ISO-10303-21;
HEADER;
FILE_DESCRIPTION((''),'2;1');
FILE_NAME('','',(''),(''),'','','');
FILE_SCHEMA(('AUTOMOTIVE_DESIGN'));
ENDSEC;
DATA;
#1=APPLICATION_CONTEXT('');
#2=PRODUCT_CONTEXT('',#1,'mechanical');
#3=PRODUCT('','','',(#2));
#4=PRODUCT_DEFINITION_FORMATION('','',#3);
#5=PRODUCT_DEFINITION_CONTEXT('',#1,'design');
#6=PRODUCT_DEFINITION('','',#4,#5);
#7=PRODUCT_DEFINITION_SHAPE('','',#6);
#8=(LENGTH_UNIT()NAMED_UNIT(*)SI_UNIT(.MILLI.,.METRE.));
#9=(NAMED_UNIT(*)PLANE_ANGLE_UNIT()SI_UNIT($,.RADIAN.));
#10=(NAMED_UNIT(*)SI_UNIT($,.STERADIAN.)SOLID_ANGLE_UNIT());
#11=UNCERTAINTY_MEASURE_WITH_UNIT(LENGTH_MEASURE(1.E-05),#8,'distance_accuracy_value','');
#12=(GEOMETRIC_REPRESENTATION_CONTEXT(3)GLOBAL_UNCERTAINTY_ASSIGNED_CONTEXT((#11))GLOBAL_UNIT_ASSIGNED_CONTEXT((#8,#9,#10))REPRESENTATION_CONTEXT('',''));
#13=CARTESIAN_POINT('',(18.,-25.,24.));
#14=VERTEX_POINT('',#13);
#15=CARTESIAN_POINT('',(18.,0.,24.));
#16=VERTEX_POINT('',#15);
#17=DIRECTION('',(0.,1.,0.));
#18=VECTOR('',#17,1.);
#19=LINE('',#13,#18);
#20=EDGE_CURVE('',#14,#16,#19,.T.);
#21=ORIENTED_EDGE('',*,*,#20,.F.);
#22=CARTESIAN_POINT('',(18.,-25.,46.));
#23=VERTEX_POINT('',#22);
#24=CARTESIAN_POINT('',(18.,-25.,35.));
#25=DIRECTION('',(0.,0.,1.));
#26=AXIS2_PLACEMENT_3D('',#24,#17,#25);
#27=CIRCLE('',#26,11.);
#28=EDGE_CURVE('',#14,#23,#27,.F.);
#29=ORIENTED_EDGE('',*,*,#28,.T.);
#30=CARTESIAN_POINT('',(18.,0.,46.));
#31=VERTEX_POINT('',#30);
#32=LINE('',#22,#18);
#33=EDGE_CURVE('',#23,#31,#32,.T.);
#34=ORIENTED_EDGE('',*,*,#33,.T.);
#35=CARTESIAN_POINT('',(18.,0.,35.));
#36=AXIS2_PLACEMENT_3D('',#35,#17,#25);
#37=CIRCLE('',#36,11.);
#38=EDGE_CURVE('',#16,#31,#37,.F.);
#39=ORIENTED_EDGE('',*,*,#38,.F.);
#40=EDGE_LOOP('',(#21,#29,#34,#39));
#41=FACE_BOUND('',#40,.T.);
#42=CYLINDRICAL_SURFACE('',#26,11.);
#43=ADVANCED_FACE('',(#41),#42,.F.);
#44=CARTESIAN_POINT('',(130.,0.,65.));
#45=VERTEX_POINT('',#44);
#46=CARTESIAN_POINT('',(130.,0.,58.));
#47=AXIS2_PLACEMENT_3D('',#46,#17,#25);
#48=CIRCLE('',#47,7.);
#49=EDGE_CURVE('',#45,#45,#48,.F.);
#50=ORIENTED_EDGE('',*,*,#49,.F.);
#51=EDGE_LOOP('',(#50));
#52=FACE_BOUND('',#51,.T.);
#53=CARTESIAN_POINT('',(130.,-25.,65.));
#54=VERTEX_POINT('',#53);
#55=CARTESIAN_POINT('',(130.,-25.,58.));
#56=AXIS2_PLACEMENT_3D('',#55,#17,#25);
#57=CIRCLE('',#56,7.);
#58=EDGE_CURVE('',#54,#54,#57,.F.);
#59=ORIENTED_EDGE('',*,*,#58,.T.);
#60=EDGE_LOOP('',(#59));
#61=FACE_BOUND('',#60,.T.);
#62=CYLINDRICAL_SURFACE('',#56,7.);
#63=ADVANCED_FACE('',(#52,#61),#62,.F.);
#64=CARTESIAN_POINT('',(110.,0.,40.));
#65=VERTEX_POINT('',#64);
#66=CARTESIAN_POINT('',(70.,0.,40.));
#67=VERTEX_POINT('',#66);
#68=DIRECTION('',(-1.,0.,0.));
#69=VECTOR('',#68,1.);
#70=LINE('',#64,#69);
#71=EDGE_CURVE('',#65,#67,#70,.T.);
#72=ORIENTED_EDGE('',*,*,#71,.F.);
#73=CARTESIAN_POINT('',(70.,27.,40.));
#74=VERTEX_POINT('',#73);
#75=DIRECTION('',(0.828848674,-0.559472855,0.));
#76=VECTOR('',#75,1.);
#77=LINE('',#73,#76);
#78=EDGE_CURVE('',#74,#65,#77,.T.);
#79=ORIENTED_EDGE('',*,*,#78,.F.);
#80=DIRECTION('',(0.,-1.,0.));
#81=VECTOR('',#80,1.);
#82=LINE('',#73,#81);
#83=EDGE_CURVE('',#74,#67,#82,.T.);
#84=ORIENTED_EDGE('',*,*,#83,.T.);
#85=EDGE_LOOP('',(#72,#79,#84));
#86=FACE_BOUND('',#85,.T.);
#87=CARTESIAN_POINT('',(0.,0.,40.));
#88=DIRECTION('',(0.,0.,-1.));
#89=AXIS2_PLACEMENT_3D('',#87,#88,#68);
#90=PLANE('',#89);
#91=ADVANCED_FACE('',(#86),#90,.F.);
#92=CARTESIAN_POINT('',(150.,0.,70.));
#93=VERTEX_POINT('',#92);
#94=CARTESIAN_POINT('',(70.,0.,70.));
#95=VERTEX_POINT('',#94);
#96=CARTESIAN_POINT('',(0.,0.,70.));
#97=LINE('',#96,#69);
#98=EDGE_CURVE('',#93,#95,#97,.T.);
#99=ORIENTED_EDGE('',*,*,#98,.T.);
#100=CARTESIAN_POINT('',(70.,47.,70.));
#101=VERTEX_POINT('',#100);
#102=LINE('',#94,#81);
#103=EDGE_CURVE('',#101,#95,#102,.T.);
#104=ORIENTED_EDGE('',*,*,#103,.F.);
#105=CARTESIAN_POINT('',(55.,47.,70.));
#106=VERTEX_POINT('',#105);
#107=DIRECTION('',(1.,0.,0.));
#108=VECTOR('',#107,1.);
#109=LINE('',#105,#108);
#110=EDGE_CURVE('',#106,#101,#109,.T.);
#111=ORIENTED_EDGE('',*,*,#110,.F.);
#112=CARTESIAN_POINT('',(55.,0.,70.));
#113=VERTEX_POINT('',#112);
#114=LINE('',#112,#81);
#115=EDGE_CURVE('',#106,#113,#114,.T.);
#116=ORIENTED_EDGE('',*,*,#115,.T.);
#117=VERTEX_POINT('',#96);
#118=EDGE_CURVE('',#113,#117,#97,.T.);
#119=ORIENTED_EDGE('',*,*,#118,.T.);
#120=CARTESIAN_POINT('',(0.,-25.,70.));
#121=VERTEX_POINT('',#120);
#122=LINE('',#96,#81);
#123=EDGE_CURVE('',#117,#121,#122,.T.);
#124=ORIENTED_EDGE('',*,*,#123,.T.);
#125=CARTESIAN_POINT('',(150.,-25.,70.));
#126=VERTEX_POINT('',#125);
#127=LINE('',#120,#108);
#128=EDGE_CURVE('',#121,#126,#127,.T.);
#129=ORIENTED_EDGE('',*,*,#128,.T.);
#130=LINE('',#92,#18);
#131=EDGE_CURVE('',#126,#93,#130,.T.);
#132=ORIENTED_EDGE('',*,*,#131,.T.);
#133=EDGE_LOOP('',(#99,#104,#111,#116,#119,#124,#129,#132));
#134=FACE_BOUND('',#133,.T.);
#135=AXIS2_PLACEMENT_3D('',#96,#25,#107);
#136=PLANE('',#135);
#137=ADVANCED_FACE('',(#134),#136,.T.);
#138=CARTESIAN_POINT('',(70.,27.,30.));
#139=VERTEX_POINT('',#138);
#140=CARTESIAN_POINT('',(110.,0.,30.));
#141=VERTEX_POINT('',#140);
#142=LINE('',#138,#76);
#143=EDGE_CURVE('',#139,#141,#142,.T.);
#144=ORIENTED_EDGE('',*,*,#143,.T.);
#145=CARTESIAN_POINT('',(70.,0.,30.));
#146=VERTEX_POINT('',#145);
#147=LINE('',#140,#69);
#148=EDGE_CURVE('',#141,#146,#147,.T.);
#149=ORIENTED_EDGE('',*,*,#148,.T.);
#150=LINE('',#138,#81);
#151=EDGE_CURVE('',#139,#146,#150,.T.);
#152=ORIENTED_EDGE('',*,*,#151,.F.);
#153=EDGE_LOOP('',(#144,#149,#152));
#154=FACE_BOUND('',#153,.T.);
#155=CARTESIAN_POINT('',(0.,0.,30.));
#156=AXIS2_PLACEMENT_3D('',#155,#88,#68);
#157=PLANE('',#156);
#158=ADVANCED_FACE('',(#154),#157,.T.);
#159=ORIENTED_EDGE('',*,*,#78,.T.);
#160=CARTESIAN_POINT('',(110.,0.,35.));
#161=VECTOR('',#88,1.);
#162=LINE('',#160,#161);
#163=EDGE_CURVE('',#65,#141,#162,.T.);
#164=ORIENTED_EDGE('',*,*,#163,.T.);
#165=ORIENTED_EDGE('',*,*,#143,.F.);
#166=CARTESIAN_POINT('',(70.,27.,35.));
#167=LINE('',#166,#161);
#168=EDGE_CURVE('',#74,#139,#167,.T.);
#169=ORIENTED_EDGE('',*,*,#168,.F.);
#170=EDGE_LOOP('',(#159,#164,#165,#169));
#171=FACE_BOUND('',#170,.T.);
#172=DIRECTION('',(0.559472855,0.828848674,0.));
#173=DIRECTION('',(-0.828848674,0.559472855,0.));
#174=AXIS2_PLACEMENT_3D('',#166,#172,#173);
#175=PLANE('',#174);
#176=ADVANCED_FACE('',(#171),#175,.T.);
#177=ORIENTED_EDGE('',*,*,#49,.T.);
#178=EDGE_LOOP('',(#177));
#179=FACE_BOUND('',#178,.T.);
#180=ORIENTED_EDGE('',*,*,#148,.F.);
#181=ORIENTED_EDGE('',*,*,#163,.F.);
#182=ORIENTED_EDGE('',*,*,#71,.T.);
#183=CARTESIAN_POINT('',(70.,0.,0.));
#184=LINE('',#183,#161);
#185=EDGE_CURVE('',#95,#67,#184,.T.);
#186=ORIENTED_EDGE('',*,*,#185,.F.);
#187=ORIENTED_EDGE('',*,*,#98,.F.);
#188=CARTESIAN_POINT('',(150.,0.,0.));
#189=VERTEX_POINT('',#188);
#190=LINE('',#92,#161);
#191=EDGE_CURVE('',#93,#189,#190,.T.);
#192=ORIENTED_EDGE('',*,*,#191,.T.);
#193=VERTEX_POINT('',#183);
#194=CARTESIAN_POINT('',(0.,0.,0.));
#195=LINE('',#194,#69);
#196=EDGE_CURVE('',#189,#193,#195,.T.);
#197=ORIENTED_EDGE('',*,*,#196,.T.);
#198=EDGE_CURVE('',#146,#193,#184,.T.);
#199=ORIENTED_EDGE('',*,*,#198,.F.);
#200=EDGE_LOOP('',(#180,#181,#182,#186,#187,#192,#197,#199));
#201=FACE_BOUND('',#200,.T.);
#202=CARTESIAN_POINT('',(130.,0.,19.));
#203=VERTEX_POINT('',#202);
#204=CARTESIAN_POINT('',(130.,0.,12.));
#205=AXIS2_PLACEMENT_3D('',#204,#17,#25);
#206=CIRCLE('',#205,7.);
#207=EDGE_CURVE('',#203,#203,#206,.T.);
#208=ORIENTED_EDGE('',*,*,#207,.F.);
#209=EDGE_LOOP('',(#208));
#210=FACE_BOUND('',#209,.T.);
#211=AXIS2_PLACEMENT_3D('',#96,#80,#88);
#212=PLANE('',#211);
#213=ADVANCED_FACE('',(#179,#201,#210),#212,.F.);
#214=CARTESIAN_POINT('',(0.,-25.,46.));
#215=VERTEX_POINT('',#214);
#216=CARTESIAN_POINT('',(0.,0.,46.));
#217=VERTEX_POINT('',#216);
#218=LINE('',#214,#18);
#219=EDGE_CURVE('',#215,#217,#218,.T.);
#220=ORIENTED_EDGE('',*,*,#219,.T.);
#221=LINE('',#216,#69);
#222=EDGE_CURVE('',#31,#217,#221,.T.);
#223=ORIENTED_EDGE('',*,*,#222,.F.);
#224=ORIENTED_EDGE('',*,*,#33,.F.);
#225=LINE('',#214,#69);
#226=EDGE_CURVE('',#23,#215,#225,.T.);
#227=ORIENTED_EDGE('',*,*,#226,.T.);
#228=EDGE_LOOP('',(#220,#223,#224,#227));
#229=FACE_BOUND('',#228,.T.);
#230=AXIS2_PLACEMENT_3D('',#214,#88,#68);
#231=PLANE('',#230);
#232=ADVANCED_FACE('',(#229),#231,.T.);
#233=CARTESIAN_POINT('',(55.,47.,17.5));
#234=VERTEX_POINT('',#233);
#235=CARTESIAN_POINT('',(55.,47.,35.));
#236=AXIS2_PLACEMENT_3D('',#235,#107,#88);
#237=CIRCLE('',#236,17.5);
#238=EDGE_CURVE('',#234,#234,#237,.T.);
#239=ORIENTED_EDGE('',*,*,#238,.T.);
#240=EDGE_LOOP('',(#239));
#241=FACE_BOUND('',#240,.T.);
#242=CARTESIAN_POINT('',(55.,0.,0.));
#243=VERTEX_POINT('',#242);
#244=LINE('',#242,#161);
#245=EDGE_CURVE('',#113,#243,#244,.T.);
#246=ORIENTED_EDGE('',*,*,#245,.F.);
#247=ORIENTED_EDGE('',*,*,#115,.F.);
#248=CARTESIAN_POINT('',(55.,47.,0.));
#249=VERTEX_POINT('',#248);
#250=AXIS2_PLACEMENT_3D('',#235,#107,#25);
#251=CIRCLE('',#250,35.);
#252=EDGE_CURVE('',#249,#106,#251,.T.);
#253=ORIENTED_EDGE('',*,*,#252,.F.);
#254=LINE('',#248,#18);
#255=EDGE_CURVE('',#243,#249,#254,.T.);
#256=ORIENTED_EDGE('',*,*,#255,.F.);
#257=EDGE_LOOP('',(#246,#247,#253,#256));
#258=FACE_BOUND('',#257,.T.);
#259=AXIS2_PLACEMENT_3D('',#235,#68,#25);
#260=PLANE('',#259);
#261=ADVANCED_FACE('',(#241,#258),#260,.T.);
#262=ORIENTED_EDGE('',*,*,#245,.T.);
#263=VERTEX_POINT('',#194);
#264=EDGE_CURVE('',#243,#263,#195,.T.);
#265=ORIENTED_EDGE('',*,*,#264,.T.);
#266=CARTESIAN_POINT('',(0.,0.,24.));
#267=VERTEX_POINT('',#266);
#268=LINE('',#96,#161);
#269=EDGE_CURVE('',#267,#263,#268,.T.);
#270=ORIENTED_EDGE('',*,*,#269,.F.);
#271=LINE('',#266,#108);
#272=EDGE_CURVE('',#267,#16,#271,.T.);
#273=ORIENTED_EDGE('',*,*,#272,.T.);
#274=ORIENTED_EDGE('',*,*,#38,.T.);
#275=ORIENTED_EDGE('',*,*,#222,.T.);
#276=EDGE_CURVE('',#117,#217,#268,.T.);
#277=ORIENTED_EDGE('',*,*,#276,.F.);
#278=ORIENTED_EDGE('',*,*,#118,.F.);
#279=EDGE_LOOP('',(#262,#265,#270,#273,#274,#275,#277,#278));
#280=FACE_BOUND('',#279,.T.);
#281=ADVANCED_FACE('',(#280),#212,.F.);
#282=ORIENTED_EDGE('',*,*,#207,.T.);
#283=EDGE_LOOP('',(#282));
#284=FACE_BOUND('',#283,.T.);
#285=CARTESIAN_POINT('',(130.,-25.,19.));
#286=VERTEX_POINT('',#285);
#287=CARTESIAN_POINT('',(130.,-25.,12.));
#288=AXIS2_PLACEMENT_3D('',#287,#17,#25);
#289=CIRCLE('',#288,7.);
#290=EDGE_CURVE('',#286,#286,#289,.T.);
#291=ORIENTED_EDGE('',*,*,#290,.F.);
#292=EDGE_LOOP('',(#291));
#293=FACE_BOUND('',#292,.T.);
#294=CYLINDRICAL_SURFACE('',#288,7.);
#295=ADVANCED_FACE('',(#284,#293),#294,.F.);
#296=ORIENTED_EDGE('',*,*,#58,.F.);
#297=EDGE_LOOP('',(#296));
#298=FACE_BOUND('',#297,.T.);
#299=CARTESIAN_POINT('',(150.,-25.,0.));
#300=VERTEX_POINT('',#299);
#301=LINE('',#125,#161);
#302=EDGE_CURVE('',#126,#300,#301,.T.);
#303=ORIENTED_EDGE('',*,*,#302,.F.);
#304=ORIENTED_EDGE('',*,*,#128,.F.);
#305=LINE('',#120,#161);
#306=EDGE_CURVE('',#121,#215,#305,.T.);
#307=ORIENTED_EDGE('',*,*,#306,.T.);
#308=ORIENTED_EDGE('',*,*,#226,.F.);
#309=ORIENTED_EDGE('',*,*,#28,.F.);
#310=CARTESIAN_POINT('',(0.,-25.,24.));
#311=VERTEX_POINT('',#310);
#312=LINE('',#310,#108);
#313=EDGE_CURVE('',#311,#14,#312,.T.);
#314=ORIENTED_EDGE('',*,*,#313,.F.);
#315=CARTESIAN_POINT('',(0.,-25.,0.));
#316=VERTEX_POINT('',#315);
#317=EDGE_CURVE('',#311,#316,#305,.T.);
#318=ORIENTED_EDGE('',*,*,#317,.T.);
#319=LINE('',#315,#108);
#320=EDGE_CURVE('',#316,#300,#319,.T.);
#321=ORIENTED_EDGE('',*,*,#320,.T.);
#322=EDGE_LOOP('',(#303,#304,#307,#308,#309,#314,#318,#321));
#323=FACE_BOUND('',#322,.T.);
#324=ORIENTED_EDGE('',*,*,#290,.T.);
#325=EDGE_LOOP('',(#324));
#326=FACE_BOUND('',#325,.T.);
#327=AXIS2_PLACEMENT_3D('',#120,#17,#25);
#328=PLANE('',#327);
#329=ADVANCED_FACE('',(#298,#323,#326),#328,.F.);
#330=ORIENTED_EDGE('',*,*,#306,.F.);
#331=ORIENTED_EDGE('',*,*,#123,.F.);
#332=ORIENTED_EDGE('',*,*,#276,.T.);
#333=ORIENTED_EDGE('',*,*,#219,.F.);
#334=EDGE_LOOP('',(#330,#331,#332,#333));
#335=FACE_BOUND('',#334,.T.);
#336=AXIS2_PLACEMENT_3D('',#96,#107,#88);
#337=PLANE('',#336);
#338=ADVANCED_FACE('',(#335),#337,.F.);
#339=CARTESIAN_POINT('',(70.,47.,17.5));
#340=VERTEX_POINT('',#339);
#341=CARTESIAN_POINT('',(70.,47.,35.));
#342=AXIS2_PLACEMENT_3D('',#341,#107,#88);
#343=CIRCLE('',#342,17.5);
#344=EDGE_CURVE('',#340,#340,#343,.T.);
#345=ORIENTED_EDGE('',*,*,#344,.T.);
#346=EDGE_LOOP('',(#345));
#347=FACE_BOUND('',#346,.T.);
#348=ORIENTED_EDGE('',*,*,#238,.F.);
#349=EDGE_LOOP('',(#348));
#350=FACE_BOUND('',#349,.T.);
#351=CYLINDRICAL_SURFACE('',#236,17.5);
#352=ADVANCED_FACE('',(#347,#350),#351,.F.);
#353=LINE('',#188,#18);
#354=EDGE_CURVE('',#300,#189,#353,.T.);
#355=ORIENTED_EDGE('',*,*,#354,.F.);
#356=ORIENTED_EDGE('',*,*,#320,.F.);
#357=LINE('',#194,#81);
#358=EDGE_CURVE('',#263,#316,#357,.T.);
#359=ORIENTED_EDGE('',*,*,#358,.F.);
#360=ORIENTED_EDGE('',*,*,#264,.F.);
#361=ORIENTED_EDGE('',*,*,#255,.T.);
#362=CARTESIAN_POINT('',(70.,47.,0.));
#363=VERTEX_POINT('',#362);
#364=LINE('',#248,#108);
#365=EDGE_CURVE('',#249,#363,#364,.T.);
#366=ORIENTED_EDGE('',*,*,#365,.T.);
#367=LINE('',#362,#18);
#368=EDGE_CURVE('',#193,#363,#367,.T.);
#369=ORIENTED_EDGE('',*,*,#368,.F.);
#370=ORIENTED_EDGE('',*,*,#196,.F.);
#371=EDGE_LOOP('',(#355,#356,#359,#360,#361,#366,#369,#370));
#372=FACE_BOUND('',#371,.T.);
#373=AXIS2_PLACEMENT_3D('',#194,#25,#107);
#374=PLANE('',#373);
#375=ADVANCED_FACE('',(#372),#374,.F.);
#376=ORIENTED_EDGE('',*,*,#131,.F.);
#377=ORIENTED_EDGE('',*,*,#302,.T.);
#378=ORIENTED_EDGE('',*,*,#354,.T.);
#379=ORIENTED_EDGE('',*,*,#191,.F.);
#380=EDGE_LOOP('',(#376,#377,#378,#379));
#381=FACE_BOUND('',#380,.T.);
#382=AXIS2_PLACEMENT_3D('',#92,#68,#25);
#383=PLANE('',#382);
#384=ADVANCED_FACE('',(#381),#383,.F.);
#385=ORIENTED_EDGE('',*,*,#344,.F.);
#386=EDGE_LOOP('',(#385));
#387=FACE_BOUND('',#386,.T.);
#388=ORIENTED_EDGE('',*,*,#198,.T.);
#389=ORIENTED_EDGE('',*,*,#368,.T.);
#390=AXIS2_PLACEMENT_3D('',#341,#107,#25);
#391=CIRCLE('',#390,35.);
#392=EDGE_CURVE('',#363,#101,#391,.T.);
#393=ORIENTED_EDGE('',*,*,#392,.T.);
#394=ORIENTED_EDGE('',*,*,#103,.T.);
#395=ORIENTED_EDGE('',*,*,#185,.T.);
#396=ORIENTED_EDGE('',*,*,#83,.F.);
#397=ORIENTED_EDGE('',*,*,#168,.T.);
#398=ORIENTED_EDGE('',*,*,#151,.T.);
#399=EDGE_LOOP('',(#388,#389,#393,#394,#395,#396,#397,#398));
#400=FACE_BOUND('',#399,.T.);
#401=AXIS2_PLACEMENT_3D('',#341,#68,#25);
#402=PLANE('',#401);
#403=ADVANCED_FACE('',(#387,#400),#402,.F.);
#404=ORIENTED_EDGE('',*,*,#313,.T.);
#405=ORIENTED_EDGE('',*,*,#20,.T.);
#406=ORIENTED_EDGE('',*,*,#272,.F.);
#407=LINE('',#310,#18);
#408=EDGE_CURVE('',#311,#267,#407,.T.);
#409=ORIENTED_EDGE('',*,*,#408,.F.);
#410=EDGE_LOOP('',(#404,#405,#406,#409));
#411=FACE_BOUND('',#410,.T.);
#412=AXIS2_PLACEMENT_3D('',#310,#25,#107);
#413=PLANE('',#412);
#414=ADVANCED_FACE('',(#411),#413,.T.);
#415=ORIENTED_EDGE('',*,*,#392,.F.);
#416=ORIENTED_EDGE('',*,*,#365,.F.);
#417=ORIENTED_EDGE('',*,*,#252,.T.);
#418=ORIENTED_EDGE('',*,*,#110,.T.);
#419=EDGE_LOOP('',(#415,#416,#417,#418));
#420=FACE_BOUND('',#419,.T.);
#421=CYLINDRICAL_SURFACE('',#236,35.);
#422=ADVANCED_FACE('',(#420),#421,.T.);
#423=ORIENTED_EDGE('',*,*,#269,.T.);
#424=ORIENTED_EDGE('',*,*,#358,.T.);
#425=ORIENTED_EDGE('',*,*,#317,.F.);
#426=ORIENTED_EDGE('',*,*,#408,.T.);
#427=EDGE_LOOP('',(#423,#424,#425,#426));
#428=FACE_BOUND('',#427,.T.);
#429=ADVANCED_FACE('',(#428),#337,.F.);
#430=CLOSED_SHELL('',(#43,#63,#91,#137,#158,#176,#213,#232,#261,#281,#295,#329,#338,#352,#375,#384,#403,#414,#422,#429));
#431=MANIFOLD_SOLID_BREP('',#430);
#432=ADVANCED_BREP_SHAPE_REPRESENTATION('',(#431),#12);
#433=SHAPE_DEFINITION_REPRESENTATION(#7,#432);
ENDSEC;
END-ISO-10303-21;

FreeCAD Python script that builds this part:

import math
import FreeCAD as App
import Part
import Sketcher

V = App.Vector
Q = App.Units.Quantity

doc = App.newDocument("Part")
body = doc.addObject("PartDesign::Body", "Body")

# Sketch on XY plane
sketch1 = body.newObject("Sketcher::SketchObject", "Sketch")
sketch1.AttachmentSupport = (doc.getObject("XY_Plane"), [""])
sketch1.MapMode = "FlatFace"
sketch1.addGeometry(Part.LineSegment(V(0, 0, 0), V(0, -25, 0)), False)
sketch1.addGeometry(Part.LineSegment(V(0, -25, 0), V(150, -25, 0)), False)
sketch1.addGeometry(Part.LineSegment(V(150, -25, 0), V(150, 0, 0)), False)
sketch1.addGeometry(Part.LineSegment(V(150, 0, 0), V(0, 0, 0)), False)
sketch1.addConstraint(Sketcher.Constraint("Coincident", 0, 2, 1, 1))
sketch1.addConstraint(Sketcher.Constraint("Coincident", 1, 2, 2, 1))
sketch1.addConstraint(Sketcher.Constraint("Coincident", 2, 2, 3, 1))
sketch1.addConstraint(Sketcher.Constraint("Coincident", 3, 2, 0, 1))
sketch1.addConstraint(Sketcher.Constraint("Vertical", 0))
sketch1.addConstraint(Sketcher.Constraint("Horizontal", 1))
sketch1.addConstraint(Sketcher.Constraint("Vertical", 2))
sketch1.addConstraint(Sketcher.Constraint("Horizontal", 3))
sketch1.addConstraint(Sketcher.Constraint("Coincident", 3, 2, -1, 1))
sketch1.addConstraint(Sketcher.Constraint("DistanceX", 1, 1, 1, 2, Q("150 mm")))
sketch1.addConstraint(Sketcher.Constraint("DistanceY", 0, 2, 0, 1, Q("25 mm")))
pad1 = body.newObject("PartDesign::Pad", "Pad")
pad1.Profile = sketch1
pad1.Length = 70

# Sketch on XZ plane
sketch2 = body.newObject("Sketcher::SketchObject", "Sketch001")
sketch2.AttachmentSupport = (doc.getObject("XZ_Plane"), [""])
sketch2.MapMode = "FlatFace"
sketch2.addGeometry(Part.LineSegment(V(18, 24, 0), V(0, 24, 0)), False)
sketch2.addGeometry(Part.LineSegment(V(0, 24, 0), V(0, 46, 0)), False)
sketch2.addGeometry(Part.LineSegment(V(0, 46, 0), V(18, 46, 0)), False)
sketch2.addGeometry(Part.ArcOfCircle(Part.Circle(V(18, 35, 0), V(0, 0, 1), 11), math.radians(-90), math.radians(90)), False)
sketch2.addGeometry(Part.Circle(V(130, 12, 0), V(0, 0, 1), 7), False)
sketch2.addGeometry(Part.Circle(V(130, 58, 0), V(0, 0, 1), 7), False)
sketch2.addConstraint(Sketcher.Constraint("Coincident", 0, 2, 1, 1))
sketch2.addConstraint(Sketcher.Constraint("Coincident", 1, 2, 2, 1))
sketch2.addConstraint(Sketcher.Constraint("Tangent", 2, 2, 3, 2))
sketch2.addConstraint(Sketcher.Constraint("Tangent", 3, 1, 0, 1))
sketch2.addConstraint(Sketcher.Constraint("Horizontal", 0))
sketch2.addConstraint(Sketcher.Constraint("Vertical", 1))
sketch2.addConstraint(Sketcher.Constraint("Horizontal", 2))
sketch2.addConstraint(Sketcher.Constraint("Equal", 4, 5))
sketch2.addConstraint(Sketcher.Constraint("PointOnObject", 0, 2, -2))
sketch2.addConstraint(Sketcher.Constraint("Vertical", 4, 3, 5, 3))
sketch2.addConstraint(Sketcher.Constraint("Diameter", 4, Q("14 mm")))
sketch2.addConstraint(Sketcher.Constraint("Radius", 3, Q("11 mm")))
sketch2.addConstraint(Sketcher.Constraint("DistanceX", 0, 2, 0, 1, Q("18 mm")))
sketch2.addConstraint(Sketcher.Constraint("DistanceY", -1, 1, 3, 3, Q("35 mm")))
sketch2.addConstraint(Sketcher.Constraint("DistanceX", -1, 1, 4, 3, Q("130 mm")))
sketch2.addConstraint(Sketcher.Constraint("DistanceY", -1, 1, 4, 3, Q("12 mm")))
sketch2.addConstraint(Sketcher.Constraint("DistanceY", -1, 1, 5, 3, Q("58 mm")))
pocket1 = body.newObject("PartDesign::Pocket", "Pocket")
pocket1.Profile = sketch2
pocket1.Type = "ThroughAll"
pocket1.Reversed = True

# Sketch on YZ plane
sketch3 = body.newObject("Sketcher::SketchObject", "Sketch002")
sketch3.AttachmentSupport = (doc.getObject("YZ_Plane"), [""])
sketch3.MapMode = "FlatFace"
sketch3.AttachmentOffset = App.Placement(V(0, 0, 70), App.Rotation())
sketch3.addGeometry(Part.LineSegment(V(47, 70, 0), V(0, 70, 0)), False)
sketch3.addGeometry(Part.LineSegment(V(0, 70, 0), V(0, 0, 0)), False)
sketch3.addGeometry(Part.LineSegment(V(0, 0, 0), V(47, 0, 0)), False)
sketch3.addGeometry(Part.ArcOfCircle(Part.Circle(V(47, 35, 0), V(0, 0, 1), 35), math.radians(-90), math.radians(90)), False)
sketch3.addGeometry(Part.Circle(V(47, 35, 0), V(0, 0, 1), 18), False)
sketch3.addConstraint(Sketcher.Constraint("Coincident", 0, 2, 1, 1))
sketch3.addConstraint(Sketcher.Constraint("Coincident", 1, 2, 2, 1))
sketch3.addConstraint(Sketcher.Constraint("Tangent", 2, 2, 3, 1))
sketch3.addConstraint(Sketcher.Constraint("Tangent", 3, 2, 0, 1))
sketch3.addConstraint(Sketcher.Constraint("Horizontal", 0))
sketch3.addConstraint(Sketcher.Constraint("Vertical", 1))
sketch3.addConstraint(Sketcher.Constraint("Horizontal", 2))
sketch3.addConstraint(Sketcher.Constraint("Coincident", 1, 2, -1, 1))
sketch3.addConstraint(Sketcher.Constraint("Coincident", 4, 3, 3, 3))
sketch3.addConstraint(Sketcher.Constraint("Diameter", 4, Q("35 mm")))
sketch3.addConstraint(Sketcher.Constraint("Radius", 3, Q("35 mm")))
sketch3.addConstraint(Sketcher.Constraint("DistanceX", 0, 2, 0, 1, Q("47 mm")))
pad2 = body.newObject("PartDesign::Pad", "Pad001")
pad2.Profile = sketch3
pad2.Length = 15
pad2.Reversed = True

# Sketch on XY plane
sketch4 = body.newObject("Sketcher::SketchObject", "Sketch003")
sketch4.AttachmentSupport = (doc.getObject("XY_Plane"), [""])
sketch4.MapMode = "FlatFace"
sketch4.AttachmentOffset = App.Placement(V(0, 0, 35), App.Rotation())
sketch4.addGeometry(Part.LineSegment(V(70, 27, 0), V(110, 0, 0)), False)
sketch4.addGeometry(Part.LineSegment(V(110, 0, 0), V(70, 0, 0)), False)
sketch4.addGeometry(Part.LineSegment(V(70, 0, 0), V(70, 27, 0)), False)
sketch4.addConstraint(Sketcher.Constraint("Coincident", 0, 2, 1, 1))
sketch4.addConstraint(Sketcher.Constraint("Coincident", 1, 2, 2, 1))
sketch4.addConstraint(Sketcher.Constraint("Coincident", 2, 2, 0, 1))
sketch4.addConstraint(Sketcher.Constraint("Horizontal", 1))
sketch4.addConstraint(Sketcher.Constraint("Vertical", 2))
sketch4.addConstraint(Sketcher.Constraint("PointOnObject", 0, 2, -1))
sketch4.addConstraint(Sketcher.Constraint("DistanceX", 1, 2, 1, 1, Q("40 mm")))
sketch4.addConstraint(Sketcher.Constraint("DistanceY", 2, 1, 2, 2, Q("27 mm")))
sketch4.addConstraint(Sketcher.Constraint("DistanceX", -1, 1, 0, 2, Q("110 mm")))
pad3 = body.newObject("PartDesign::Pad", "Pad002")
pad3.Profile = sketch4
pad3.Type = "TwoLengths"
pad3.Length = 5
pad3.Length2 = 5
pad3.Reversed = True

doc.recompute()
